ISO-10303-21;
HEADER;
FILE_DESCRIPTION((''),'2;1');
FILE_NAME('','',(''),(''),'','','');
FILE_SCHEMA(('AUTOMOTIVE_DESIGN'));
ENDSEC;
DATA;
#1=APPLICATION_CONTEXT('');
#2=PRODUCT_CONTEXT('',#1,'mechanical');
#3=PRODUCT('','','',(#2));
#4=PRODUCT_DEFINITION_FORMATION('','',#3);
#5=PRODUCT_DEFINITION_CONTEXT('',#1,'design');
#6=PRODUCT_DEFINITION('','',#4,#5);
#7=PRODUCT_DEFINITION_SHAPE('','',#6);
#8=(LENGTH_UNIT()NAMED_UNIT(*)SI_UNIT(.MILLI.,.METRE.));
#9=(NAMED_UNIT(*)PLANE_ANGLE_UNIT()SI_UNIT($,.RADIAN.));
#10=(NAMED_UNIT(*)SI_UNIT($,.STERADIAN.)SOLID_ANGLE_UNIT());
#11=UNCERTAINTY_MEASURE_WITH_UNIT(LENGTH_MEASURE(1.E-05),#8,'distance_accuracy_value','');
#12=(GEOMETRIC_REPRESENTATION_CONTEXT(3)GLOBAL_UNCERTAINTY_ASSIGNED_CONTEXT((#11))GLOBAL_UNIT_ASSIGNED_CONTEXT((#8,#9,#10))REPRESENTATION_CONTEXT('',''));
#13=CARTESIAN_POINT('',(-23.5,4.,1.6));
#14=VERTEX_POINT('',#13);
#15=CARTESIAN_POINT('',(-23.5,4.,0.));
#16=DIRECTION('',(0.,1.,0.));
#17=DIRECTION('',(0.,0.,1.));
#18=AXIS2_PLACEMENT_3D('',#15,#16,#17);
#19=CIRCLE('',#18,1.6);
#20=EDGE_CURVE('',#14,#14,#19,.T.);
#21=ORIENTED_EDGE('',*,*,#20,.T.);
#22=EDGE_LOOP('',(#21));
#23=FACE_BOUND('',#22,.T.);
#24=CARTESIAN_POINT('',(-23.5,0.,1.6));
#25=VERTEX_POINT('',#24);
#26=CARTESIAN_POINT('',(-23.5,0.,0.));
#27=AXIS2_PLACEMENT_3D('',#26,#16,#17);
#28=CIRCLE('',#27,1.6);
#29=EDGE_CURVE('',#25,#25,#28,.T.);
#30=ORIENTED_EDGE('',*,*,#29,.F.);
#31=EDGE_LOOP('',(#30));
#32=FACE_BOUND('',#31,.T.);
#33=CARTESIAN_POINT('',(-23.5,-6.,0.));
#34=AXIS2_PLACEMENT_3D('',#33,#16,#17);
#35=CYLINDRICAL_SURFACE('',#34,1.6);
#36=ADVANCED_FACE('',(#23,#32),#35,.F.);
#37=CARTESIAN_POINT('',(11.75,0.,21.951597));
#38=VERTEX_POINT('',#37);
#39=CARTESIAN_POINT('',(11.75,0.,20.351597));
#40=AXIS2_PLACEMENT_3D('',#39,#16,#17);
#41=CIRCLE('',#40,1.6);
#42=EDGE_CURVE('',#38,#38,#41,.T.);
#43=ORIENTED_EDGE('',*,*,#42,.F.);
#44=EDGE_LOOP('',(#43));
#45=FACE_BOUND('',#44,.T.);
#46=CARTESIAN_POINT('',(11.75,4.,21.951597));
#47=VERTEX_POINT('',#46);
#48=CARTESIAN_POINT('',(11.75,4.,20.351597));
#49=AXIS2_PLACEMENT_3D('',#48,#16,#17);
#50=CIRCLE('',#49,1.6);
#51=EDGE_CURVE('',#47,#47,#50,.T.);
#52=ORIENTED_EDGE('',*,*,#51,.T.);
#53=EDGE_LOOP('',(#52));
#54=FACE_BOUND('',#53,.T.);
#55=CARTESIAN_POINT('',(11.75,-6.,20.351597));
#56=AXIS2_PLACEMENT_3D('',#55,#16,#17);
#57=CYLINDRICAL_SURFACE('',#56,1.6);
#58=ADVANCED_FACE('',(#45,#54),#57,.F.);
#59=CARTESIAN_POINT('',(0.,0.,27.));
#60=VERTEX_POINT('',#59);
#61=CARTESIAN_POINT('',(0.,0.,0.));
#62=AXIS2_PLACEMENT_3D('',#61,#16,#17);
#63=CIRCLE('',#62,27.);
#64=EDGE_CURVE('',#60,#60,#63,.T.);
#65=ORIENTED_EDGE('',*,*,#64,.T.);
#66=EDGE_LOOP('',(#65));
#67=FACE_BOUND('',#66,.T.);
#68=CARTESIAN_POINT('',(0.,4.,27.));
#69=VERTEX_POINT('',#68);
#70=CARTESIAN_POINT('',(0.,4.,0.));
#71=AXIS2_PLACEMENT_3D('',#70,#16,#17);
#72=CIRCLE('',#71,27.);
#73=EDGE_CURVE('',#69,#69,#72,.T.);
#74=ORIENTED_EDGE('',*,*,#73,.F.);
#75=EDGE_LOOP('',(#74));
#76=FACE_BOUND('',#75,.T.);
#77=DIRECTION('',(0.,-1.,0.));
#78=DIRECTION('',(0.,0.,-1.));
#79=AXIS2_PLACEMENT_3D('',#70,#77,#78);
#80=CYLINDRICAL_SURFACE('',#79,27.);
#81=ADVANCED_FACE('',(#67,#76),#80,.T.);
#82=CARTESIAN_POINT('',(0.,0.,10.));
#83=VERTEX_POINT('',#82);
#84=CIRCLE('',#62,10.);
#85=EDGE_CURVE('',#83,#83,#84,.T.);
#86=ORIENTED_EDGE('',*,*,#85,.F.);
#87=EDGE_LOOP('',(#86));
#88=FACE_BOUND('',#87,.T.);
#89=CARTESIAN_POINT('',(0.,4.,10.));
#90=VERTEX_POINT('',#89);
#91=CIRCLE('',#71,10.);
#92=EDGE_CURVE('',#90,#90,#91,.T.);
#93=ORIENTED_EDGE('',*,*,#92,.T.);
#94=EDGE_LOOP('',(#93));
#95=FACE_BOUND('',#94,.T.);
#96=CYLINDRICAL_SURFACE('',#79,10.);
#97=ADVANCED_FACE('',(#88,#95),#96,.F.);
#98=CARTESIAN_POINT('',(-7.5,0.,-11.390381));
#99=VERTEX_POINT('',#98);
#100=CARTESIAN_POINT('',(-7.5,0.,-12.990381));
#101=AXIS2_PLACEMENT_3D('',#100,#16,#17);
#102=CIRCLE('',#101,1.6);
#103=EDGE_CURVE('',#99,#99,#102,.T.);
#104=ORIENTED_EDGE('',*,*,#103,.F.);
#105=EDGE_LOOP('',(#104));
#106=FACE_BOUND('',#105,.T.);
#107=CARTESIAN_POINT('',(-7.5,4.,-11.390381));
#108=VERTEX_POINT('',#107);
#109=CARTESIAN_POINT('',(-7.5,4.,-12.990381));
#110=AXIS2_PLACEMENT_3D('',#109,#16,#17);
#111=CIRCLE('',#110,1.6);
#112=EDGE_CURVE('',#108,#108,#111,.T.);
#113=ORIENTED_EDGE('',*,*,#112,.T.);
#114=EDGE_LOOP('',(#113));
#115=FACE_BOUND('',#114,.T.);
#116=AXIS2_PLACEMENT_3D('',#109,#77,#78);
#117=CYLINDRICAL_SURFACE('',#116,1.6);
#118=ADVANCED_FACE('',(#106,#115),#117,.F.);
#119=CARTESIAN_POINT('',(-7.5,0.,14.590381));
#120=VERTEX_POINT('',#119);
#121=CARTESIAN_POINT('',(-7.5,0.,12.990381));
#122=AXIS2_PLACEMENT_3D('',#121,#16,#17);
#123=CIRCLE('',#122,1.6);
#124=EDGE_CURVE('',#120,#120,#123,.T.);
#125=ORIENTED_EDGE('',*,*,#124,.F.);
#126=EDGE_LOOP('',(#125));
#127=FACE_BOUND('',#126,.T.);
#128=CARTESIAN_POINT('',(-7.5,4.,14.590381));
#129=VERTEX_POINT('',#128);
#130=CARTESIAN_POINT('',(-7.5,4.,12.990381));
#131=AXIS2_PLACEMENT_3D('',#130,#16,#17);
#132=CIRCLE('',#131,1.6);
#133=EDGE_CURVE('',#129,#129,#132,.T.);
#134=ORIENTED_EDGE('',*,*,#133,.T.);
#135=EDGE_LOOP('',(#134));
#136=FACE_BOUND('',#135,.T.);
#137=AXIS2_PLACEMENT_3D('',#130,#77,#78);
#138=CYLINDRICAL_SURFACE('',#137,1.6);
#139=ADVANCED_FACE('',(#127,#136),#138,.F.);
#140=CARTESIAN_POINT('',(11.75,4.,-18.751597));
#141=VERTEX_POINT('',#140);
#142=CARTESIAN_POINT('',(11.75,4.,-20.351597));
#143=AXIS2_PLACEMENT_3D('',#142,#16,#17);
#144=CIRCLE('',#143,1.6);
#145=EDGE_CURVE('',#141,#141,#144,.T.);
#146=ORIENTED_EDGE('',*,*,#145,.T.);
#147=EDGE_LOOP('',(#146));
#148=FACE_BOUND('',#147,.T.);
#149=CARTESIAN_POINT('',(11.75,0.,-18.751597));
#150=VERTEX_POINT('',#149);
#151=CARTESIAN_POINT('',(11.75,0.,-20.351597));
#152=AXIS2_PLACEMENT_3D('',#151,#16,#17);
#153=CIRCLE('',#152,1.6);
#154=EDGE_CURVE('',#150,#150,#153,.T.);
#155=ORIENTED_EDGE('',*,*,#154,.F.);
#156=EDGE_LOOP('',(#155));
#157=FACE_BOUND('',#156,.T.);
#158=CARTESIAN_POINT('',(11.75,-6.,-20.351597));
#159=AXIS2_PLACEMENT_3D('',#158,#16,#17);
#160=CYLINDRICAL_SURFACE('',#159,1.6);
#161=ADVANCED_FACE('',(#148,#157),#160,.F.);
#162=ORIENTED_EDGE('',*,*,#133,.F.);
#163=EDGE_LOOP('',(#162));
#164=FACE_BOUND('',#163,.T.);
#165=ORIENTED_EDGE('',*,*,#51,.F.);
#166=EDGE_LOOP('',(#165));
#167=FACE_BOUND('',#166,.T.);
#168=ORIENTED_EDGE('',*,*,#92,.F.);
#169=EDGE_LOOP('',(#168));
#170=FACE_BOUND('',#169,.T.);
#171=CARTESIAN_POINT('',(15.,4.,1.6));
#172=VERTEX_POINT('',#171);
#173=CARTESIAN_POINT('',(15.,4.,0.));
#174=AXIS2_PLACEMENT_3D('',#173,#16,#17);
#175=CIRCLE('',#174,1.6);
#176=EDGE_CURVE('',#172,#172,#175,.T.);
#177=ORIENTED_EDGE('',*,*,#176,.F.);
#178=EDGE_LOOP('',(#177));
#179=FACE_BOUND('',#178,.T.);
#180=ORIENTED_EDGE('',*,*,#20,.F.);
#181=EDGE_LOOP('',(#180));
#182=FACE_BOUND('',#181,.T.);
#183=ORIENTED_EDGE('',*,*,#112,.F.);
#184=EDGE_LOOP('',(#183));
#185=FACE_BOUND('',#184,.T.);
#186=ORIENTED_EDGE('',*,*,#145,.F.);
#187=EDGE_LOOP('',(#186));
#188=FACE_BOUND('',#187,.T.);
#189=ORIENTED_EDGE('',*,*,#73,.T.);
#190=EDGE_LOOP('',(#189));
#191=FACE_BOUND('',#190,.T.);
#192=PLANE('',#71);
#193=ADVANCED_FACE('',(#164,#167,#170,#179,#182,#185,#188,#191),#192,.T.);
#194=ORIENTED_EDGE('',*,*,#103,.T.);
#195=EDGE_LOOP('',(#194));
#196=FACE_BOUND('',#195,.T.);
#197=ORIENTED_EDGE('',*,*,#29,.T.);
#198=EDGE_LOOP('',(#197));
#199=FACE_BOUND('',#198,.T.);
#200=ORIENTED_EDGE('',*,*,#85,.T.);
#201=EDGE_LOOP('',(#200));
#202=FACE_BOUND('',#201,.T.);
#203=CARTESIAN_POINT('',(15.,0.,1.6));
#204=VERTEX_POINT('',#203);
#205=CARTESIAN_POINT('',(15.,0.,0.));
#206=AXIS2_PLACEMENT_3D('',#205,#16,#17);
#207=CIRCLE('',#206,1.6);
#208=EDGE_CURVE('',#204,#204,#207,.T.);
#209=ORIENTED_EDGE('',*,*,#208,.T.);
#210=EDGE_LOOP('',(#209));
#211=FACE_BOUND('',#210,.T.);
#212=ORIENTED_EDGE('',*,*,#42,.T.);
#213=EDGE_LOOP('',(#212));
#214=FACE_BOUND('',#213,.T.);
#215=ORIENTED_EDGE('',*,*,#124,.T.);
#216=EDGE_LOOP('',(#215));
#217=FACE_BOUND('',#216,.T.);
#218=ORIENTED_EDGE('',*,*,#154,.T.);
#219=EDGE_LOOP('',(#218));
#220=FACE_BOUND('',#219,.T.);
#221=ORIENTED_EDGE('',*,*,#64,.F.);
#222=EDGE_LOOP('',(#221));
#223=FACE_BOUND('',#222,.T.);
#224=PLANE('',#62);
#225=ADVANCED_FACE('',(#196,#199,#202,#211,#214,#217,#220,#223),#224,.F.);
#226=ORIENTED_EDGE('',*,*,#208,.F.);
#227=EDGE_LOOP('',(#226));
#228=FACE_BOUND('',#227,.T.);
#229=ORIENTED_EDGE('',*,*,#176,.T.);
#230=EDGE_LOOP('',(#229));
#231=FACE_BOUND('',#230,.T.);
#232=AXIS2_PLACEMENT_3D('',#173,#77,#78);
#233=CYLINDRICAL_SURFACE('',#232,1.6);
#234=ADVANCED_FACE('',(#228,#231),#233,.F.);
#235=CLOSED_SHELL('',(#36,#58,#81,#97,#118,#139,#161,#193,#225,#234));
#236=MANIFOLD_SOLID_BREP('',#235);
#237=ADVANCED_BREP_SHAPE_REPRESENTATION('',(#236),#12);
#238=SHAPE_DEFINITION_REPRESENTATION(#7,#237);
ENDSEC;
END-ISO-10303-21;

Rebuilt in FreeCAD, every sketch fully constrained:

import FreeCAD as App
import Part
import Sketcher

V = App.Vector

doc = App.newDocument("Part")
body = doc.addObject("PartDesign::Body", "Body")

# Sketch on XZ plane
sketch1 = body.newObject("Sketcher::SketchObject", "Sketch")
sketch1.AttachmentSupport = (doc.getObject("XZ_Plane"), [""])
sketch1.MapMode = "FlatFace"
sketch1.addGeometry([
    Part.Circle(V(0, 0, 0), V(0, 0, 1), 27),  # 0
    Part.Circle(V(-7.5, -13, 0), V(0, 0, 1), 1.6),  # 1
    Part.Circle(V(0, 0, 0), V(0, 0, 1), 10),  # 2
    Part.Circle(V(-7.5, 13, 0), V(0, 0, 1), 1.6),  # 3
    Part.Circle(V(15, 0, 0), V(0, 0, 1), 1.6),  # 4
], False)
sketch1.addConstraint([
    Sketcher.Constraint("Coincident", 0, 3, -1, 1),
    Sketcher.Constraint("Coincident", 2, 3, -1, 1),
    Sketcher.Constraint("Equal", 1, 3),
    Sketcher.Constraint("Equal", 3, 4),
    Sketcher.Constraint("Symmetric", 1, 3, 3, 3, -1),
    Sketcher.Constraint("PointOnObject", 4, 3, -1),
    Sketcher.Constraint("Diameter", 0, 54.0),
    Sketcher.Constraint("Diameter", 2, 20.0),
    Sketcher.Constraint("Diameter", 1, 3.2),
    Sketcher.Constraint("DistanceX", -1, 1, 4, 3, 15.0),
    Sketcher.Constraint("DistanceX", 1, 3, -1, 1, 7.5),
    Sketcher.Constraint("DistanceY", 1, 3, -1, 1, 12.990381),
])
pad1 = body.newObject("PartDesign::Pad", "Pad")
pad1.Profile = sketch1
pad1.Length = 4
pad1.Reversed = True

# Sketch on XZ plane
sketch2 = body.newObject("Sketcher::SketchObject", "Sketch001")
sketch2.AttachmentSupport = (doc.getObject("XZ_Plane"), [""])
sketch2.MapMode = "FlatFace"
sketch2.AttachmentOffset = App.Placement(V(0, 0, -4), App.Rotation())
sketch2.addGeometry([
    Part.Circle(V(11.8, -20.4, 0), V(0, 0, 1), 1.6),
    Part.Circle(V(11.8, 20.4, 0), V(0, 0, 1), 1.6),
    Part.Circle(V(-23.5, 0, 0), V(0, 0, 1), 1.6),
], False)
sketch2.addConstraint([
    Sketcher.Constraint("Equal", 0, 1),
    Sketcher.Constraint("Equal", 1, 2),
    Sketcher.Constraint("Symmetric", 0, 3, 1, 3, -1),
    Sketcher.Constraint("PointOnObject", 2, 3, -1),
    Sketcher.Constraint("Diameter", 0, 3.2),
    Sketcher.Constraint("DistanceX", 2, 3, -1, 1, 23.5),
    Sketcher.Constraint("DistanceX", -1, 1, 0, 3, 11.75),
    Sketcher.Constraint("DistanceY", 0, 3, -1, 1, 20.351597),
])
pocket1 = body.newObject("PartDesign::Pocket", "Pocket")
pocket1.Profile = sketch2
pocket1.Length = 10
pocket1.Reversed = True

doc.recompute()
